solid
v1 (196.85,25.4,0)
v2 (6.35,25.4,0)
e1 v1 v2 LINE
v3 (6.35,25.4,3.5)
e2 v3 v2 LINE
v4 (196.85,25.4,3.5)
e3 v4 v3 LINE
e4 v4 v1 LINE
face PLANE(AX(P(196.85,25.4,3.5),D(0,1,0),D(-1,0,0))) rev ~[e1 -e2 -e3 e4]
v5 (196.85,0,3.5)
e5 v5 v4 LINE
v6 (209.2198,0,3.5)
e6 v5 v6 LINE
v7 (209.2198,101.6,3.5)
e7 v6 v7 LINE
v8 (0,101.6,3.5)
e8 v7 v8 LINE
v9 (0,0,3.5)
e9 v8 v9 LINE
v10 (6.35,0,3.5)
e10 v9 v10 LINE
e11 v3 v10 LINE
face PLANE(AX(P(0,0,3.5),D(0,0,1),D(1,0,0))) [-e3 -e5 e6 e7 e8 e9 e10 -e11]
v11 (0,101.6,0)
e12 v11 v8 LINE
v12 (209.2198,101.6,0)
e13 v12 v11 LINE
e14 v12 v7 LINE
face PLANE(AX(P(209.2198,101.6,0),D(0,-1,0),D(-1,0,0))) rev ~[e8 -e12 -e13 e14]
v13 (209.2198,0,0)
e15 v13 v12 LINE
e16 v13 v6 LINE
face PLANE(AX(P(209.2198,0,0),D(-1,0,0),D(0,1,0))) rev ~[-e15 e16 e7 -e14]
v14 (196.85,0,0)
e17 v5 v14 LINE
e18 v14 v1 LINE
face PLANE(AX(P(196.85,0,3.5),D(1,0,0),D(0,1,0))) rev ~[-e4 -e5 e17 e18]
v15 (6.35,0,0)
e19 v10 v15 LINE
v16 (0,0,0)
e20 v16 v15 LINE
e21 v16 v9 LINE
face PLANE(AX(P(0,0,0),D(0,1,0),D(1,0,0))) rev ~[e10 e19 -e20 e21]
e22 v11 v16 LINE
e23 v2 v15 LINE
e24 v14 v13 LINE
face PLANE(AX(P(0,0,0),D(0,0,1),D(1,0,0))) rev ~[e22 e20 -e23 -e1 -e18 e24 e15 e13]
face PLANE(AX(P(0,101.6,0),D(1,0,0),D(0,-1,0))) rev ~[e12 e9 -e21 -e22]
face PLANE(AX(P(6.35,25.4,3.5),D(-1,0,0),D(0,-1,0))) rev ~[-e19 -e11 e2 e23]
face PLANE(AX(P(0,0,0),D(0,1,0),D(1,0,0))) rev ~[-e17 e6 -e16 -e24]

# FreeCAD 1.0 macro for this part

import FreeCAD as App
import Part
import Sketcher
from FreeCAD import Vector
Q = App.Units.Quantity


def add_polygon(sketch, points):
    """Adds a closed chain of lines whose ends are joined by coincident constraints."""
    first, n = sketch.GeometryCount, len(points)
    for a, b in zip(points, points[1:] + points[:1]):
        sketch.addGeometry(Part.LineSegment(App.Vector(*a, 0), App.Vector(*b, 0)), False)
    for i in range(n):
        sketch.addConstraint(Sketcher.Constraint("Coincident", first + i, 2, first + (i + 1) % n, 1))

doc = App.newDocument("Part")
body = doc.addObject("PartDesign::Body", "Body")

# Sketch on XY plane
sketch1 = doc.addObject("Sketcher::SketchObject", "Sketch")
body.addObject(sketch1)
sketch1.AttachmentSupport = (doc.XY_Plane, [""])
sketch1.MapMode = "FlatFace"
add_polygon(sketch1, [(0, 102), (0, 0), (209, 0), (209, 102)])  # lines 0-3
sketch1.addConstraint([
    Sketcher.Constraint("Vertical", 0),
    Sketcher.Constraint("Horizontal", 1),
    Sketcher.Constraint("Vertical", 2),
    Sketcher.Constraint("Horizontal", 3),
    Sketcher.Constraint("Coincident", 0, 2, -1, 1),
    Sketcher.Constraint("DistanceY", 0, 2, 0, 1, Q("4 in")),
    Sketcher.Constraint("DistanceX", 1, 1, 1, 2, Q("8.237 in")),
])
pad1 = doc.addObject("PartDesign::Pad", "Pad")
body.addObject(pad1)
pad1.Profile = sketch1
pad1.Length = Q("0.1377953 in")

# Sketch on XY plane
sketch2 = doc.addObject("Sketcher::SketchObject", "Sketch001")
body.addObject(sketch2)
sketch2.AttachmentSupport = (doc.XY_Plane, [""])
sketch2.MapMode = "FlatFace"
sketch2.AttachmentOffset = App.Placement(Vector(0, 0, 0.1377953 * 25.4), App.Rotation())
add_polygon(sketch2, [(6, 25), (6, 0), (197, 0), (197, 25)])  # lines 0-3
sketch2.addConstraint([
    Sketcher.Constraint("Vertical", 0),
    Sketcher.Constraint("Horizontal", 1),
    Sketcher.Constraint("Vertical", 2),
    Sketcher.Constraint("Horizontal", 3),
    Sketcher.Constraint("PointOnObject", 0, 2, -1),
    Sketcher.Constraint("DistanceY", 0, 2, 0, 1, Q("1 in")),
    Sketcher.Constraint("DistanceX", 1, 1, 1, 2, Q("7.5 in")),
    Sketcher.Constraint("DistanceX", -1, 1, 0, 2, Q("0.25 in")),
])
pocket1 = doc.addObject("PartDesign::Pocket", "Pocket")
body.addObject(pocket1)
pocket1.Profile = sketch2
pocket1.Length = Q("0.1377953 in")

doc.recompute()
